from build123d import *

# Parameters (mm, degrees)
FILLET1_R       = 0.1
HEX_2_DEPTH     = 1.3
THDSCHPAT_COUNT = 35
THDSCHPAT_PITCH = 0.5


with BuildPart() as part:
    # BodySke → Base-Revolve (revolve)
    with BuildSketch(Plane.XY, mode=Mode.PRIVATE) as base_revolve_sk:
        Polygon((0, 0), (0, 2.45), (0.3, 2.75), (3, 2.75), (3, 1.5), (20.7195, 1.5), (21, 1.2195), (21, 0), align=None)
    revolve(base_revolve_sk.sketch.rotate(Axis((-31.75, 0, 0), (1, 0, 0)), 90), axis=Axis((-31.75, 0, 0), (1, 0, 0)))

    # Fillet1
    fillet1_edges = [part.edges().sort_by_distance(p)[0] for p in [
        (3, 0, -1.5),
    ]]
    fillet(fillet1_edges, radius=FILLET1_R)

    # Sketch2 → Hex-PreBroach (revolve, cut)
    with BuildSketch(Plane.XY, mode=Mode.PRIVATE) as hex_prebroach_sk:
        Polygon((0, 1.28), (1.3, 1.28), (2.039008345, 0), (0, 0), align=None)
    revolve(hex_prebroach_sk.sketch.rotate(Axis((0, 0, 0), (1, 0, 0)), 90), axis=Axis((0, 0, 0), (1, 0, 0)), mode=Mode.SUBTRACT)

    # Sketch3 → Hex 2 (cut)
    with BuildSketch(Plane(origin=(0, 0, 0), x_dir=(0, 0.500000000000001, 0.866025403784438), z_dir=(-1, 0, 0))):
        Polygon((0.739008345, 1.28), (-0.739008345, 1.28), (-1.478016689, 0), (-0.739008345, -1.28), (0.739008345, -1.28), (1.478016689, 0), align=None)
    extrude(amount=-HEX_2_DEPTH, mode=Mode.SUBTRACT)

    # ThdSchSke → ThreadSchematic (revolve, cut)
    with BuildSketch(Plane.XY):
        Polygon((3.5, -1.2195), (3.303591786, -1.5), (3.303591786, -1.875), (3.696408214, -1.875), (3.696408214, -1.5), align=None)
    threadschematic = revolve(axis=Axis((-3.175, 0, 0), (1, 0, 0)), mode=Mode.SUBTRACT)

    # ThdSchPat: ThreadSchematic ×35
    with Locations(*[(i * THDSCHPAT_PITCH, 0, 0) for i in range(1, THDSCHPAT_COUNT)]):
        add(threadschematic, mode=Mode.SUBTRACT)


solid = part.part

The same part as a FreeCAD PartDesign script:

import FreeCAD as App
import Part
import Sketcher

V = App.Vector
Q = App.Units.Quantity


def edges_at(feature, points):
    """Names of the edges that pass closest to the given points."""
    edges = feature.Shape.Edges
    near = lambda p: min(range(len(edges)), key=lambda i: edges[i].distToShape(Part.Vertex(*p))[0])
    return sorted({f"Edge{near(p) + 1}" for p in points})


def add_polygon(sketch, points):
    """Adds a closed chain of lines whose ends are joined by coincident constraints."""
    first, n = sketch.GeometryCount, len(points)
    for a, b in zip(points, points[1:] + points[:1]):
        sketch.addGeometry(Part.LineSegment(App.Vector(*a, 0), App.Vector(*b, 0)), False)
    for i in range(n):
        sketch.addConstraint(Sketcher.Constraint("Coincident", first + i, 2, first + (i + 1) % n, 1))

doc = App.newDocument("Part")
params = doc.addObject("Spreadsheet::Sheet", "Params")
for row, (alias, value) in enumerate([
    ("sketch1_width", "21 mm"),
    ("sketch1_width2", "2.7 mm"),
    ("sketch1_height", "2.45 mm"),
    ("sketch1_height2", "1.25 mm"),
    ("revolution_angle", "360 deg"),
    ("fillet_radius", "0.1 mm"),
    ("sketch2_width", "1.3 mm"),
    ("sketch2_height", "1.28 mm"),
    ("groove_angle", "360 deg"),
    ("pocket1_length", "1.3 mm"),
    ("groove2_angle", "360 deg"),
    ("linearpattern_pitch", "0.5 mm"),
], start=1):
    params.set(f"A{row}", alias)
    params.set(f"B{row}", "=" + value)
    params.setAlias(f"B{row}", alias)

body = doc.addObject("PartDesign::Body", "Body")

sketch1 = body.newObject("Sketcher::SketchObject", "Sketch")
sketch1.AttachmentSupport = (doc.getObject("XY_Plane"), [""])
sketch1.MapMode = "FlatFace"
add_polygon(sketch1, [(0, 2.45), (0, 0), (21, 0), (21, 1.22), (20.72, 1.5), (3, 1.5), (3, 2.75), (0.3, 2.75)])
sketch1.addConstraint([
    Sketcher.Constraint("Vertical", 0),
    Sketcher.Constraint("Horizontal", 1),
    Sketcher.Constraint("Vertical", 2),
    Sketcher.Constraint("Horizontal", 4),
    Sketcher.Constraint("Vertical", 5),
    Sketcher.Constraint("Horizontal", 6),
    Sketcher.Constraint("Coincident", 0, 2, -1, 1),
    Sketcher.Constraint("Perpendicular", 3, 7),
    Sketcher.Constraint("DistanceX", 1, 1, 1, 2, 21.0),
    Sketcher.Constraint("Angle", 3, Q("135 deg")),
    Sketcher.Constraint("DistanceX", 6, 2, 6, 1, 2.7),
    Sketcher.Constraint("DistanceX", -1, 1, 4, 2, 3.0),
    Sketcher.Constraint("DistanceY", 0, 2, 0, 1, 2.45),
    Sketcher.Constraint("DistanceY", 5, 1, 5, 2, 1.25),
    Sketcher.Constraint("DistanceX", 4, 2, 4, 1, 17.7195),
])
sketch1.setExpression("Constraints[16]", "Params.sketch1_width")
sketch1.setExpression("Constraints[18]", "Params.sketch1_width2")
sketch1.setExpression("Constraints[20]", "Params.sketch1_height")
sketch1.setExpression("Constraints[21]", "Params.sketch1_height2")
revolution = body.newObject("PartDesign::Revolution", "Revolution")
revolution.Profile = sketch1
revolution.ReferenceAxis = (sketch1, ["H_Axis"])
revolution.setExpression("Angle", "Params.revolution_angle")
doc.recompute()

fillet = body.newObject("PartDesign::Fillet", "Fillet")
fillet.Base = (revolution, edges_at(revolution, [(3, 0, -1.5)]))
fillet.setExpression("Radius", "Params.fillet_radius")

sketch2 = body.newObject("Sketcher::SketchObject", "Sketch001")
sketch2.AttachmentSupport = (doc.getObject("XY_Plane"), [""])
sketch2.MapMode = "FlatFace"
add_polygon(sketch2, [(1.3, 1.3), (0, 1.3), (0, 0), (2, 0)])
sketch2.addConstraint([
    Sketcher.Constraint("Horizontal", 0),
    Sketcher.Constraint("Vertical", 1),
    Sketcher.Constraint("Horizontal", 2),
    Sketcher.Constraint("Coincident", 1, 2, -1, 1),
    Sketcher.Constraint("Angle", 3, Q("120 deg")),
    Sketcher.Constraint("DistanceX", 0, 2, 0, 1, 1.3),
    Sketcher.Constraint("DistanceY", 1, 2, 1, 1, 1.28),
])
sketch2.setExpression("Constraints[9]", "Params.sketch2_width")
sketch2.setExpression("Constraints[10]", "Params.sketch2_height")
groove = body.newObject("PartDesign::Groove", "Groove")
groove.Profile = sketch2
groove.ReferenceAxis = (sketch2, ["H_Axis"])
groove.setExpression("Angle", "Params.groove_angle")

sketch3 = body.newObject("Sketcher::SketchObject", "Sketch002")
sketch3.AttachmentSupport = (doc.getObject("YZ_Plane"), [""])
sketch3.MapMode = "FlatFace"
add_polygon(sketch3, [(1.5, 0), (0.7, -1.3), (-0.7, -1.3), (-1.5, 0), (-0.7, 1.3), (0.7, 1.3)])
sketch3.addConstraint([
    Sketcher.Constraint("Horizontal", 1),
    Sketcher.Constraint("Horizontal", 4),
    Sketcher.Constraint("Symmetric", 0, 2, 3, 2, -1, 1),
    Sketcher.Constraint("Symmetric", 2, 2, 5, 2, -1, 1),
    Sketcher.Constraint("PointOnObject", 2, 2, -1),
    Sketcher.Constraint("Parallel", 2, 5),
    Sketcher.Constraint("Vertical", 1, 2, 3, 2),
    Sketcher.Constraint("Angle", 0, Q("-120 deg")),
    Sketcher.Constraint("DistanceY", 0, 2, -1, 1, 1.28),
    Sketcher.Constraint("DistanceX", 1, 2, 1, 1, 1.478017),
])
pocket1 = body.newObject("PartDesign::Pocket", "Pocket")
pocket1.Profile = sketch3
pocket1.setExpression("Length", "Params.pocket1_length")
pocket1.Reversed = True

sketch4 = body.newObject("Sketcher::SketchObject", "Sketch003")
sketch4.AttachmentSupport = (doc.getObject("XY_Plane"), [""])
sketch4.MapMode = "FlatFace"
add_polygon(sketch4, [(3.5, -1.22), (3.3, -1.5), (3.3, -1.88), (3.7, -1.88), (3.7, -1.5)])
sketch4.addConstraint([
    Sketcher.Constraint("Vertical", 1),
    Sketcher.Constraint("Horizontal", 2),
    Sketcher.Constraint("Vertical", 3),
    Sketcher.Constraint("Horizontal", 0, 2, 3, 2),
    Sketcher.Constraint("Equal", 0, 4),
    Sketcher.Constraint("Angle", 0, Q("-125 deg")),
    Sketcher.Constraint("DistanceY", 0, 2, -1, 1, 1.5),
    Sketcher.Constraint("DistanceX", -1, 1, 4, 2, 3.5),
    Sketcher.Constraint("DistanceY", 1, 2, 1, 1, 0.375),
    Sketcher.Constraint("DistanceY", 4, 2, -1, 1, 1.2195),
])
groove2 = body.newObject("PartDesign::Groove", "Groove001")
groove2.Profile = sketch4
groove2.ReferenceAxis = (sketch4, ["H_Axis"])
groove2.setExpression("Angle", "Params.groove2_angle")
doc.recompute()

linearpattern = body.newObject("PartDesign::LinearPattern", "LinearPattern")
linearpattern.Originals = [groove2]
linearpattern.Direction = (doc.getObject("X_Axis"), [""])
linearpattern.Mode = "offset"
linearpattern.setExpression("Offset", "Params.linearpattern_pitch")
linearpattern.Occurrences = 35
body.Tip = linearpattern

doc.recompute()
